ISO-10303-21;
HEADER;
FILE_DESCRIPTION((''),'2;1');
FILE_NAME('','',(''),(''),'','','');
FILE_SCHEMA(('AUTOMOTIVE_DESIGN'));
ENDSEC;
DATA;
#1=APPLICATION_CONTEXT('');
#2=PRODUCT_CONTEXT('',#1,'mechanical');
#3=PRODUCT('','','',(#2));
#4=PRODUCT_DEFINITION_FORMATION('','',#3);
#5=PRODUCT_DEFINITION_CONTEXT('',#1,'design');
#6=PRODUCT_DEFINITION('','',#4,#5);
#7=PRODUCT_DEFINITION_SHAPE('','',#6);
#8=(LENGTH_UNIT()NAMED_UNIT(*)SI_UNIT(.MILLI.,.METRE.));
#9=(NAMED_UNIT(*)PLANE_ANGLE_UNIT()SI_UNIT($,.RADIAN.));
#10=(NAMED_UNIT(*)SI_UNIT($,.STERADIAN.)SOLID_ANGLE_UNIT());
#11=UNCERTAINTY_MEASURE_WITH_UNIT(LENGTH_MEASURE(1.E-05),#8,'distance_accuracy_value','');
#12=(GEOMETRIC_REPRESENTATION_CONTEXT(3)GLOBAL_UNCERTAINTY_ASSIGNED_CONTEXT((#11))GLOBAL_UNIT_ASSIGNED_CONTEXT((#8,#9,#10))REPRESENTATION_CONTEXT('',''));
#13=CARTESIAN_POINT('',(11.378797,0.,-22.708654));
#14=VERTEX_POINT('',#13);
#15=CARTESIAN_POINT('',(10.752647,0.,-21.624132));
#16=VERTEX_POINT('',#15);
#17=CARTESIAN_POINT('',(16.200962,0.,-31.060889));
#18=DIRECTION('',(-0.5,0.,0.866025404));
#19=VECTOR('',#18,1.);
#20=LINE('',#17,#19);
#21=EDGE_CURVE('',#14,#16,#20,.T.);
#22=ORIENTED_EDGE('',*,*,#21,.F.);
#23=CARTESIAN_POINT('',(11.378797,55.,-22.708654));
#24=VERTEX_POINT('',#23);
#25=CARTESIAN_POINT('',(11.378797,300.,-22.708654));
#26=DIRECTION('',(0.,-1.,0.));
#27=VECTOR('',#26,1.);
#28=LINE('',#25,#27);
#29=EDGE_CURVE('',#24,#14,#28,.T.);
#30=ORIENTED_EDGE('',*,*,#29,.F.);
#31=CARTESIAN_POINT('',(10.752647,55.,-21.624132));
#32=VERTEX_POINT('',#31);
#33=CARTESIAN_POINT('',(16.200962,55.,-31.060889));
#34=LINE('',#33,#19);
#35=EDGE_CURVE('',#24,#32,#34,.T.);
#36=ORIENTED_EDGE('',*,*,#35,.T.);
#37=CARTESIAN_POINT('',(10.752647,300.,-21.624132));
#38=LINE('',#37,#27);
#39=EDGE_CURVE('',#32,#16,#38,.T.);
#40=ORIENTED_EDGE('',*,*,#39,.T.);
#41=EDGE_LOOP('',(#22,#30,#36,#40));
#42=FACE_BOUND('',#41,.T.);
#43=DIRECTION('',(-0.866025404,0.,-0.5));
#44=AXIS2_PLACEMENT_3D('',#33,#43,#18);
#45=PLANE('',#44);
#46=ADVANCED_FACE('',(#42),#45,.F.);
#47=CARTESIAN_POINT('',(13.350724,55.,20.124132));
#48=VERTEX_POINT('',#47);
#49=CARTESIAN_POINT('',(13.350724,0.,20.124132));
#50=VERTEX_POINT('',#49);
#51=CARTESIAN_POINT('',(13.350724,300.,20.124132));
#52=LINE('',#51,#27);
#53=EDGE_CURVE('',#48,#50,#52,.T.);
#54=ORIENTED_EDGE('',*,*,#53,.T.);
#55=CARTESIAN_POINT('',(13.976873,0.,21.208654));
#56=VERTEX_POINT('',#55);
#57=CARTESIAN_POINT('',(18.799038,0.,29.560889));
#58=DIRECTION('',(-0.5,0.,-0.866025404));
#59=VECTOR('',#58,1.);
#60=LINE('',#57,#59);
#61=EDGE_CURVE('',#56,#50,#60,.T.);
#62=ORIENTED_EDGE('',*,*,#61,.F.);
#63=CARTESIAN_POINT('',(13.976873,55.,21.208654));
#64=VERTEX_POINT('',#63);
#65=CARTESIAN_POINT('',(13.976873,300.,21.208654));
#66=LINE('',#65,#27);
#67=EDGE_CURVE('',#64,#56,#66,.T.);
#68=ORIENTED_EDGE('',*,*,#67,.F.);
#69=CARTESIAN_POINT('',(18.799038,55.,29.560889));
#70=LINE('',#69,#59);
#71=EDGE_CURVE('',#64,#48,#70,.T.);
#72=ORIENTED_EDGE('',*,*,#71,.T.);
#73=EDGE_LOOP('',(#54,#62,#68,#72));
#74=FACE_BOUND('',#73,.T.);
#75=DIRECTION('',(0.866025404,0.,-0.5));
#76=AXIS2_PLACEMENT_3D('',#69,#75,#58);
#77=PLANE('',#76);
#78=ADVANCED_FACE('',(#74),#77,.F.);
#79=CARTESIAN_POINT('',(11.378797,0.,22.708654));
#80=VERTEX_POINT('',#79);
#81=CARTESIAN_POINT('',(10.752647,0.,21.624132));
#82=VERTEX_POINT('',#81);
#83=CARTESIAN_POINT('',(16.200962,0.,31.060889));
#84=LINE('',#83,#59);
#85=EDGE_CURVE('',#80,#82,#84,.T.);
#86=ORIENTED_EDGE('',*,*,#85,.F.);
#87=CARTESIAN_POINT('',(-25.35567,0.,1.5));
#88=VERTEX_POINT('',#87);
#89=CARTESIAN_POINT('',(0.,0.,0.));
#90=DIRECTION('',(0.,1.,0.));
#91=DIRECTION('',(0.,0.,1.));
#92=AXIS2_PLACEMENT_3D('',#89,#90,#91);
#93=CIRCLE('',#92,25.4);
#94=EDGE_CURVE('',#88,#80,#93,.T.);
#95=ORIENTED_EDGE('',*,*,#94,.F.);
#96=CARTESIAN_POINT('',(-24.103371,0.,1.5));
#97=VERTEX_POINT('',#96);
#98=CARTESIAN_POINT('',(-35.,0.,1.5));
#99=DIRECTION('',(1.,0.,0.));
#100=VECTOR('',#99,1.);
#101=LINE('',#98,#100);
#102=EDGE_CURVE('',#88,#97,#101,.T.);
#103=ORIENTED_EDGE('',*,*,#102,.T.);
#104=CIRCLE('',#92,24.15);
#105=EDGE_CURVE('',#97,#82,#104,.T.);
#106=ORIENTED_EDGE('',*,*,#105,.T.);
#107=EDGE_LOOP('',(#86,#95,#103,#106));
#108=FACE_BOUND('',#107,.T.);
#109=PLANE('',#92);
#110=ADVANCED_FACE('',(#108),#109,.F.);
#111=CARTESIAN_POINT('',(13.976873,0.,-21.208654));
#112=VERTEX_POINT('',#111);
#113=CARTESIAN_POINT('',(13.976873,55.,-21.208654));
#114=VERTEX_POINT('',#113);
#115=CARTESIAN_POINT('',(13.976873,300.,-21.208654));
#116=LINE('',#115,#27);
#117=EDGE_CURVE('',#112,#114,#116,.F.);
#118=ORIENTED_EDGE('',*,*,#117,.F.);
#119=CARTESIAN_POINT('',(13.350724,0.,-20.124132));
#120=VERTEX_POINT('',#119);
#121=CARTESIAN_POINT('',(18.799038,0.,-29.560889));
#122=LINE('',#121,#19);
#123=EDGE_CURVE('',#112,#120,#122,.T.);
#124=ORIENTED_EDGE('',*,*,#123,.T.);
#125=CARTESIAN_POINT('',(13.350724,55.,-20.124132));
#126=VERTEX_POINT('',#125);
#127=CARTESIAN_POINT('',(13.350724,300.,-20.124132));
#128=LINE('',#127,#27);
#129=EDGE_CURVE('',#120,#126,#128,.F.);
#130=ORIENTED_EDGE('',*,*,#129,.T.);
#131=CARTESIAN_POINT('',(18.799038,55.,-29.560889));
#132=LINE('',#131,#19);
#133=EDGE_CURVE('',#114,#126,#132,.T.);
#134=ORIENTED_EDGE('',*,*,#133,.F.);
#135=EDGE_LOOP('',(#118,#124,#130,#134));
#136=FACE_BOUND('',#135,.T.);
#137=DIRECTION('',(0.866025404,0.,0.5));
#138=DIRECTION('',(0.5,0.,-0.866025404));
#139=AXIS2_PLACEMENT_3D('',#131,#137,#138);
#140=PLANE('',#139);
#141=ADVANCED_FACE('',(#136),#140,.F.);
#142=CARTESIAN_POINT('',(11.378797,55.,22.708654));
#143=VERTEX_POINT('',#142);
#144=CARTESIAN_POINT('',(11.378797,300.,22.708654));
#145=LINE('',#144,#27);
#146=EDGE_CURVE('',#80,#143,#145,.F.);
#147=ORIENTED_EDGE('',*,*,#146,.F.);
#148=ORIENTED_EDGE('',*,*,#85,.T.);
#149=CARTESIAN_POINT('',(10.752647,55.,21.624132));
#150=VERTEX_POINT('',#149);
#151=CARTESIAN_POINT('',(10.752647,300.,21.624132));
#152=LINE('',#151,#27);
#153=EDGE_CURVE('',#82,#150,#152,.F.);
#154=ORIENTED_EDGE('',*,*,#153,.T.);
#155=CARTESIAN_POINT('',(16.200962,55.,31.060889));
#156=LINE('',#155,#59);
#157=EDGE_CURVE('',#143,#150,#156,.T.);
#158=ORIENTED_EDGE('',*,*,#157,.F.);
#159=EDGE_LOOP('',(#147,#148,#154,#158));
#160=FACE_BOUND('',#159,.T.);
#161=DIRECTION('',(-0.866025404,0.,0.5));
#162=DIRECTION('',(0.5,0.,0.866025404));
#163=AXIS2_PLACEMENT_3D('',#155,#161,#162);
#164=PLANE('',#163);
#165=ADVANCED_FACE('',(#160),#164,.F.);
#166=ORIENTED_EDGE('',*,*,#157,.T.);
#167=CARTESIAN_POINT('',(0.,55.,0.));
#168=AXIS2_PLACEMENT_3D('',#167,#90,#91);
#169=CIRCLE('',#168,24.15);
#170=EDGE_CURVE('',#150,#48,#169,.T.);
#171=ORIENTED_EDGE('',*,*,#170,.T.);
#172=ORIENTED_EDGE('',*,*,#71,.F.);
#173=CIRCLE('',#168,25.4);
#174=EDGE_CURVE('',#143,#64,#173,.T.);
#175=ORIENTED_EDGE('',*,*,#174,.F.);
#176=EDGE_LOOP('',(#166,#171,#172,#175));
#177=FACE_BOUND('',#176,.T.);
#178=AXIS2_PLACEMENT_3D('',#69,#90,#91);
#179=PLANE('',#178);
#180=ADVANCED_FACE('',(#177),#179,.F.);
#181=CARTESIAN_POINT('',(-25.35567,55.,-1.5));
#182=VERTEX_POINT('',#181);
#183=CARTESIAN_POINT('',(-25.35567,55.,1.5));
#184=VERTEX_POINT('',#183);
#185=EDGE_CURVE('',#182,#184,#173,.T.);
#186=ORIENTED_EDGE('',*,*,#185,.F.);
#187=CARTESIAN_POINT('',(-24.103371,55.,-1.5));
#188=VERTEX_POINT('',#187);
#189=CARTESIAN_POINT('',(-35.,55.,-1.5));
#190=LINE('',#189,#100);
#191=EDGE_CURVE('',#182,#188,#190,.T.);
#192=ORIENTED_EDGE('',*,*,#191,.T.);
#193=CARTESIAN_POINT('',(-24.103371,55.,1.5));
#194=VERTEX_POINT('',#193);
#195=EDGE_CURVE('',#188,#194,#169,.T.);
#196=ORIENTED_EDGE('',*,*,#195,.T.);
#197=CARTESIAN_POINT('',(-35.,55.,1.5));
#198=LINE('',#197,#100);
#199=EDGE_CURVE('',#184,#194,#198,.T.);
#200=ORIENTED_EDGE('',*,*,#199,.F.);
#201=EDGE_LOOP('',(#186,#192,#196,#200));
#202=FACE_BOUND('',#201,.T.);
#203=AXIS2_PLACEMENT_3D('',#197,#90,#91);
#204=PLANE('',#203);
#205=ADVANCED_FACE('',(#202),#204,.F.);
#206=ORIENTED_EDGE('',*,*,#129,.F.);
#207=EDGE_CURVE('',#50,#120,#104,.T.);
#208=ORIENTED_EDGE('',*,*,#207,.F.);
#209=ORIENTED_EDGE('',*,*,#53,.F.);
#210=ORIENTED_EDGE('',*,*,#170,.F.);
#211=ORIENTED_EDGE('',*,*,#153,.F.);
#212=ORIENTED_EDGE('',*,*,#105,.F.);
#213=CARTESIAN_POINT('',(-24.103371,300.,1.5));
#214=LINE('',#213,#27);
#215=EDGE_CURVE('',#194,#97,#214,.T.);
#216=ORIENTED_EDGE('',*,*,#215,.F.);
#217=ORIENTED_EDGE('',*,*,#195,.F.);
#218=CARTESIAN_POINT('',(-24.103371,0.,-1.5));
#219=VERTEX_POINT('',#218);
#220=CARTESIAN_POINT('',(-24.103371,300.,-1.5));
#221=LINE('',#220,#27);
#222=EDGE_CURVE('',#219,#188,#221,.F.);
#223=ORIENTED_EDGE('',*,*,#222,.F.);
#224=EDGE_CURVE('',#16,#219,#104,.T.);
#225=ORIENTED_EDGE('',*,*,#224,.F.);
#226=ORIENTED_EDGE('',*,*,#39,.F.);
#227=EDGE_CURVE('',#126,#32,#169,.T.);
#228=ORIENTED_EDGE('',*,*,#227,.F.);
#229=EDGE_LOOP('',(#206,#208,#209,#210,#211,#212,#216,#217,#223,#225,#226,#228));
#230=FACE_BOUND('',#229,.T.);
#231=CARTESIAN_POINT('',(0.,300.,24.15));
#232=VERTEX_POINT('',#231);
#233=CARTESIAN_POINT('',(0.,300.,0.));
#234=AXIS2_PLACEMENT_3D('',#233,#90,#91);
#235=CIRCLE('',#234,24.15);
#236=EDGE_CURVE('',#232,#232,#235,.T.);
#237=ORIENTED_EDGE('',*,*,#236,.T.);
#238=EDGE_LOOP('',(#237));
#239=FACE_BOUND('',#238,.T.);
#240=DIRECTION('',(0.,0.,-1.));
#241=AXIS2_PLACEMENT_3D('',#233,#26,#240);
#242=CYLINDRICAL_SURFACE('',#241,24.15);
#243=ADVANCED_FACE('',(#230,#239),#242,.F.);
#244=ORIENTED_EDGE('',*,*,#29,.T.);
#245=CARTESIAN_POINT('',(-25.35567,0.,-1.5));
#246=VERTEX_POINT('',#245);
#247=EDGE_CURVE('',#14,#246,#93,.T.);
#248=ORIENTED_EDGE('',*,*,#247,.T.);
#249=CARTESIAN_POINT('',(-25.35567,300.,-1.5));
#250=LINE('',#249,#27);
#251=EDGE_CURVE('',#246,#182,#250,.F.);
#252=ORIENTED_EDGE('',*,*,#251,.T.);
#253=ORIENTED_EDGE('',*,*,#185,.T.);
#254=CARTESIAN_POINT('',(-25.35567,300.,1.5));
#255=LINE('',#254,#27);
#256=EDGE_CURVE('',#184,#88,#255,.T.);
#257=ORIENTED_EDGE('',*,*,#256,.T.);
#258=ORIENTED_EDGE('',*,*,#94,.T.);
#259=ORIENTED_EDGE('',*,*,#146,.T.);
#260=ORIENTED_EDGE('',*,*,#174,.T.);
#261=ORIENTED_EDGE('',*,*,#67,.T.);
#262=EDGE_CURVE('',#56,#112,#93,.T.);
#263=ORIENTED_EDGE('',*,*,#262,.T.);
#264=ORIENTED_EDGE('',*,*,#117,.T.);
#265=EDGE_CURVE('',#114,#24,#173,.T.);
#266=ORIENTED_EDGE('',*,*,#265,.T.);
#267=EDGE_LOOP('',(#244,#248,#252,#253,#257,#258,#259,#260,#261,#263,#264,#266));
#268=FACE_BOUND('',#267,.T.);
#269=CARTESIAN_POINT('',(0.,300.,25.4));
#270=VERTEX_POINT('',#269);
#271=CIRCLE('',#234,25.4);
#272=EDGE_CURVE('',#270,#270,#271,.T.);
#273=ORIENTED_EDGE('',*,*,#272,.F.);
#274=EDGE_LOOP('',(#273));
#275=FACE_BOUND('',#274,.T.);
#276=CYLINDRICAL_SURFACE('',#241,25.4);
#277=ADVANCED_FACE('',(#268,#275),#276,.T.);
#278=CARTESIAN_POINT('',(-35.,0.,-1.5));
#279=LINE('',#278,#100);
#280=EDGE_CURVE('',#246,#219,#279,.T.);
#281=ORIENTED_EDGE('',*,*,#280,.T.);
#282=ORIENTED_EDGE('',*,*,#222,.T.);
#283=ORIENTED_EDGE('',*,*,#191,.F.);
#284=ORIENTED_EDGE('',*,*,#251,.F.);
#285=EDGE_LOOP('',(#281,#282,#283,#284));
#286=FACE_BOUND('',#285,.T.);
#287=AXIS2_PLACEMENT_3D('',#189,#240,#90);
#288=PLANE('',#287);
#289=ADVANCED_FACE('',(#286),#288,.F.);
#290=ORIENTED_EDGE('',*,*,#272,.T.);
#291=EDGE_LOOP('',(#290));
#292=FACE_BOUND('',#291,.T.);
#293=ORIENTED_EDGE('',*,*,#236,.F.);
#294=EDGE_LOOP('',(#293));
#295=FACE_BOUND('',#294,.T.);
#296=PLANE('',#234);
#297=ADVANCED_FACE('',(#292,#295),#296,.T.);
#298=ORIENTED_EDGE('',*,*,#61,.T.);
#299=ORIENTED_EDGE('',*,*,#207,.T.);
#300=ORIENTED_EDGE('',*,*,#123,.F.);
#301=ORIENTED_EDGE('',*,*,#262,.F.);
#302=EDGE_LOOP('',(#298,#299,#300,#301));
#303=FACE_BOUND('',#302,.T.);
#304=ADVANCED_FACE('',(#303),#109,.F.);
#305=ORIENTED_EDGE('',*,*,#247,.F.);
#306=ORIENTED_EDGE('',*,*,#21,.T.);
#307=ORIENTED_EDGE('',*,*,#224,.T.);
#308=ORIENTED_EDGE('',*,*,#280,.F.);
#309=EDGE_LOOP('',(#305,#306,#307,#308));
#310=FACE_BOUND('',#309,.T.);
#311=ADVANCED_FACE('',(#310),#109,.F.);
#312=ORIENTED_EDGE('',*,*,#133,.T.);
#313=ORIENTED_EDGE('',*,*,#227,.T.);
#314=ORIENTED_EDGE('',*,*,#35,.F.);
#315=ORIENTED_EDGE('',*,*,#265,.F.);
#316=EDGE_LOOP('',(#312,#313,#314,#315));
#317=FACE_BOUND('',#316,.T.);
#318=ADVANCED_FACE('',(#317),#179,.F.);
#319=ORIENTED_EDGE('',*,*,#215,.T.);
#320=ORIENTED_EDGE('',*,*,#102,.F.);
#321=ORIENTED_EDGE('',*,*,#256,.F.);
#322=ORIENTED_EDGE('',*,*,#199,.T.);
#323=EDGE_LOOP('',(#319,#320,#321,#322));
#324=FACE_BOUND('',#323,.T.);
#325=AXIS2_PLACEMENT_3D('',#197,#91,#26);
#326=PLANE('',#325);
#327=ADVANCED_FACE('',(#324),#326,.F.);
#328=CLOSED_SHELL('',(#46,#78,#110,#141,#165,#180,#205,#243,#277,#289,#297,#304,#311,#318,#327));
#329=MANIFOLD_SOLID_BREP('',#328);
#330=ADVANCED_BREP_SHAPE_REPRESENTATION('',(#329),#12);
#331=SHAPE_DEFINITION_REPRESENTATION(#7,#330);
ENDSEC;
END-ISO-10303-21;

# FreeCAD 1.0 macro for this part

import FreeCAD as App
import Part
import Sketcher
Q = App.Units.Quantity

doc = App.newDocument("Part")
body = doc.addObject("PartDesign::Body", "Body")

sketch1 = body.newObject("Sketcher::SketchObject", "Sketch")
sketch1.AttachmentSupport = (doc.getObject("XZ_Plane"), [""])
sketch1.MapMode = "FlatFace"
sketch1.addGeometry([
    Part.Circle(App.Vector(0, 0, 0), App.Vector(0, 0, 1), 25),
    Part.Circle(App.Vector(0, 0, 0), App.Vector(0, 0, 1), 24),
], False)
sketch1.addConstraint([
    Sketcher.Constraint("Coincident", 0, 3, -1, 1),
    Sketcher.Constraint("Coincident", 1, 3, -1, 1),
    Sketcher.Constraint("Diameter", 0, Q("50.8 mm")),
    Sketcher.Constraint("Diameter", 1, Q("48.3 mm")),
])
pad1 = body.newObject("PartDesign::Pad", "Pad")
pad1.Profile = sketch1
pad1.Length = 300
pad1.Reversed = True

sketch2 = body.newObject("Sketcher::SketchObject", "Sketch001")
sketch2.AttachmentSupport = (doc.getObject("YZ_Plane"), [""])
sketch2.MapMode = "FlatFace"
sketch2.addGeometry([
    Part.LineSegment(App.Vector(55, 1.5, 0), App.Vector(0, 1.5, 0)),
    Part.LineSegment(App.Vector(0, 1.5, 0), App.Vector(0, -1.5, 0)),
    Part.LineSegment(App.Vector(0, -1.5, 0), App.Vector(55, -1.5, 0)),
    Part.LineSegment(App.Vector(55, -1.5, 0), App.Vector(55, 1.5, 0)),
], False)
sketch2.addConstraint([
    Sketcher.Constraint("Coincident", 0, 2, 1, 1),
    Sketcher.Constraint("Coincident", 1, 2, 2, 1),
    Sketcher.Constraint("Coincident", 2, 2, 3, 1),
    Sketcher.Constraint("Coincident", 3, 2, 0, 1),
    Sketcher.Constraint("Horizontal", 0),
    Sketcher.Constraint("Vertical", 1),
    Sketcher.Constraint("Horizontal", 2),
    Sketcher.Constraint("Vertical", 3),
    Sketcher.Constraint("Symmetric", 0, 2, 1, 2, -1, 1),
    Sketcher.Constraint("DistanceX", 0, 2, 0, 1, Q("55 mm")),
    Sketcher.Constraint("DistanceY", 1, 2, 1, 1, Q("3 mm")),
])
pocket1 = body.newObject("PartDesign::Pocket", "Pocket")
pocket1.Profile = sketch2
pocket1.Length = 35
doc.recompute()

polarpattern = body.newObject("PartDesign::PolarPattern", "PolarPattern")
polarpattern.Originals = [pocket1]
polarpattern.Axis = (doc.getObject("Y_Axis"), [""])
polarpattern.Angle = 360
polarpattern.Occurrences = 3
body.Tip = polarpattern

doc.recompute()
